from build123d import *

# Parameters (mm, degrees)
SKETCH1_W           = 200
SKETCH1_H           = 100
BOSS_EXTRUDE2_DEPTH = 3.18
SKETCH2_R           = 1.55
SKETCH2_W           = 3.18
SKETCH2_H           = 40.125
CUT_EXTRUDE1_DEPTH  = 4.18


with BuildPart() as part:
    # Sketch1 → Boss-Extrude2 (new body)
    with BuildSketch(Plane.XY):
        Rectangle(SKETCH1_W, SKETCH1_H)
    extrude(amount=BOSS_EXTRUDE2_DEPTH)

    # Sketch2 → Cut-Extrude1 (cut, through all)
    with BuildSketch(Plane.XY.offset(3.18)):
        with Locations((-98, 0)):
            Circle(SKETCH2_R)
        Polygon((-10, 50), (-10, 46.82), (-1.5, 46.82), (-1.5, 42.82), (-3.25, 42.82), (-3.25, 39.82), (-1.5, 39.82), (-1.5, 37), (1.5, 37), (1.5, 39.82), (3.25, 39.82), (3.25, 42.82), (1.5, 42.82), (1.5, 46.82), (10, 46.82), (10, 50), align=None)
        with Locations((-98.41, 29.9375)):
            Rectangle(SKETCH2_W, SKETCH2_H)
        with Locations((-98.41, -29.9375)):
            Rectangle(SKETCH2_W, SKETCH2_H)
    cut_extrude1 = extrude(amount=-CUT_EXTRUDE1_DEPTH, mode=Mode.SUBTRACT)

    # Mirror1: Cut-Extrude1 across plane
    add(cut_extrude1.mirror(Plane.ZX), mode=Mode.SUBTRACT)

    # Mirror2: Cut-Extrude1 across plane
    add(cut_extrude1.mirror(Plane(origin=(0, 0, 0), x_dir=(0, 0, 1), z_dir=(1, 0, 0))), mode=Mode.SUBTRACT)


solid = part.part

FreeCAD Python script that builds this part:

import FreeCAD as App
import Part
import Sketcher

doc = App.newDocument("Part")
body = doc.addObject("PartDesign::Body", "Body")

sketch1 = body.newObject("Sketcher::SketchObject", "Sketch")
sketch1.AttachmentSupport = (doc.getObject("XY_Plane"), [""])
sketch1.MapMode = "FlatFace"
sketch1.addGeometry([
    Part.LineSegment(App.Vector(-100, 50, 0), App.Vector(-100, -50, 0)),
    Part.LineSegment(App.Vector(-100, -50, 0), App.Vector(100, -50, 0)),
    Part.LineSegment(App.Vector(100, -50, 0), App.Vector(100, 50, 0)),
    Part.LineSegment(App.Vector(100, 50, 0), App.Vector(-100, 50, 0)),
], False)
sketch1.addConstraint([
    Sketcher.Constraint("Coincident", 0, 2, 1, 1),
    Sketcher.Constraint("Coincident", 1, 2, 2, 1),
    Sketcher.Constraint("Coincident", 2, 2, 3, 1),
    Sketcher.Constraint("Coincident", 3, 2, 0, 1),
    Sketcher.Constraint("Vertical", 0),
    Sketcher.Constraint("Horizontal", 1),
    Sketcher.Constraint("Vertical", 2),
    Sketcher.Constraint("Horizontal", 3),
    Sketcher.Constraint("Symmetric", 0, 2, 2, 2, -1, 1),
    Sketcher.Constraint("DistanceX", 1, 1, 1, 2, 200.0),
    Sketcher.Constraint("DistanceY", 0, 2, 0, 1, 100.0),
])
pad1 = body.newObject("PartDesign::Pad", "Pad")
pad1.Profile = sketch1
pad1.Length = 3.18

sketch2 = body.newObject("Sketcher::SketchObject", "Sketch001")
sketch2.AttachmentSupport = (doc.getObject("XY_Plane"), [""])
sketch2.MapMode = "FlatFace"
sketch2.AttachmentOffset = App.Placement(App.Vector(0, 0, 3.18), App.Rotation())
sketch2.addGeometry([
    Part.Circle(App.Vector(-98, 0, 0), App.Vector(0, 0, 1), 1.55),
    Part.LineSegment(App.Vector(-10, 50, 0), App.Vector(-10, 46.82, 0)),
    Part.LineSegment(App.Vector(-10, 46.82, 0), App.Vector(-1.5, 46.82, 0)),
    Part.LineSegment(App.Vector(-1.5, 46.82, 0), App.Vector(-1.5, 42.82, 0)),
    Part.LineSegment(App.Vector(-1.5, 42.82, 0), App.Vector(-3.25, 42.82, 0)),
    Part.LineSegment(App.Vector(-3.25, 42.82, 0), App.Vector(-3.25, 39.82, 0)),
    Part.LineSegment(App.Vector(-3.25, 39.82, 0), App.Vector(-1.5, 39.82, 0)),
    Part.LineSegment(App.Vector(-1.5, 39.82, 0), App.Vector(-1.5, 37, 0)),
    Part.LineSegment(App.Vector(-1.5, 37, 0), App.Vector(1.5, 37, 0)),
    Part.LineSegment(App.Vector(1.5, 37, 0), App.Vector(1.5, 39.82, 0)),
    Part.LineSegment(App.Vector(1.5, 39.82, 0), App.Vector(3.25, 39.82, 0)),
    Part.LineSegment(App.Vector(3.25, 39.82, 0), App.Vector(3.25, 42.82, 0)),
    Part.LineSegment(App.Vector(3.25, 42.82, 0), App.Vector(1.5, 42.82, 0)),
    Part.LineSegment(App.Vector(1.5, 42.82, 0), App.Vector(1.5, 46.82, 0)),
    Part.LineSegment(App.Vector(1.5, 46.82, 0), App.Vector(10, 46.82, 0)),
    Part.LineSegment(App.Vector(10, 46.82, 0), App.Vector(10, 50, 0)),
    Part.LineSegment(App.Vector(10, 50, 0), App.Vector(-10, 50, 0)),
    Part.LineSegment(App.Vector(-100, 50, 0), App.Vector(-100, 9.875, 0)),
    Part.LineSegment(App.Vector(-100, 9.875, 0), App.Vector(-96.82, 9.875, 0)),
    Part.LineSegment(App.Vector(-96.82, 9.875, 0), App.Vector(-96.82, 50, 0)),
    Part.LineSegment(App.Vector(-96.82, 50, 0), App.Vector(-100, 50, 0)),
    Part.LineSegment(App.Vector(-100, -9.875, 0), App.Vector(-100, -50, 0)),
    Part.LineSegment(App.Vector(-100, -50, 0), App.Vector(-96.82, -50, 0)),
    Part.LineSegment(App.Vector(-96.82, -50, 0), App.Vector(-96.82, -9.875, 0)),
    Part.LineSegment(App.Vector(-96.82, -9.875, 0), App.Vector(-100, -9.875, 0)),
], False)
sketch2.addConstraint([
    Sketcher.Constraint("Coincident", 1, 2, 2, 1),
    Sketcher.Constraint("Coincident", 2, 2, 3, 1),
    Sketcher.Constraint("Coincident", 3, 2, 4, 1),
    Sketcher.Constraint("Coincident", 4, 2, 5, 1),
    Sketcher.Constraint("Coincident", 5, 2, 6, 1),
    Sketcher.Constraint("Coincident", 6, 2, 7, 1),
    Sketcher.Constraint("Coincident", 7, 2, 8, 1),
    Sketcher.Constraint("Coincident", 8, 2, 9, 1),
    Sketcher.Constraint("Coincident", 9, 2, 10, 1),
    Sketcher.Constraint("Coincident", 10, 2, 11, 1),
    Sketcher.Constraint("Coincident", 11, 2, 12, 1),
    Sketcher.Constraint("Coincident", 12, 2, 13, 1),
    Sketcher.Constraint("Coincident", 13, 2, 14, 1),
    Sketcher.Constraint("Coincident", 14, 2, 15, 1),
    Sketcher.Constraint("Coincident", 15, 2, 16, 1),
    Sketcher.Constraint("Coincident", 16, 2, 1, 1),
    Sketcher.Constraint("Coincident", 17, 2, 18, 1),
    Sketcher.Constraint("Coincident", 18, 2, 19, 1),
    Sketcher.Constraint("Coincident", 19, 2, 20, 1),
    Sketcher.Constraint("Coincident", 20, 2, 17, 1),
    Sketcher.Constraint("Coincident", 21, 2, 22, 1),
    Sketcher.Constraint("Coincident", 22, 2, 23, 1),
    Sketcher.Constraint("Coincident", 23, 2, 24, 1),
    Sketcher.Constraint("Coincident", 24, 2, 21, 1),
    Sketcher.Constraint("Vertical", 1),
    Sketcher.Constraint("Horizontal", 2),
    Sketcher.Constraint("Vertical", 3),
    Sketcher.Constraint("Horizontal", 4),
    Sketcher.Constraint("Vertical", 5),
    Sketcher.Constraint("Horizontal", 6),
    Sketcher.Constraint("Vertical", 7),
    Sketcher.Constraint("Horizontal", 8),
    Sketcher.Constraint("Vertical", 9),
    Sketcher.Constraint("Horizontal", 10),
    Sketcher.Constraint("Vertical", 11),
    Sketcher.Constraint("Horizontal", 12),
    Sketcher.Constraint("Vertical", 13),
    Sketcher.Constraint("Horizontal", 14),
    Sketcher.Constraint("Vertical", 15),
    Sketcher.Constraint("Horizontal", 16),
    Sketcher.Constraint("Vertical", 17),
    Sketcher.Constraint("Horizontal", 18),
    Sketcher.Constraint("Vertical", 19),
    Sketcher.Constraint("Horizontal", 20),
    Sketcher.Constraint("Vertical", 21),
    Sketcher.Constraint("Horizontal", 22),
    Sketcher.Constraint("Vertical", 23),
    Sketcher.Constraint("Horizontal", 24),
    Sketcher.Constraint("Symmetric", 6, 2, 9, 2, -2),
    Sketcher.Constraint("Symmetric", 4, 2, 11, 2, -2),
    Sketcher.Constraint("Symmetric", 2, 2, 13, 2, -2),
    Sketcher.Constraint("Symmetric", 20, 2, 21, 2, -1),
    Sketcher.Constraint("Symmetric", 18, 2, 23, 2, -1),
    Sketcher.Constraint("PointOnObject", 0, 3, -1),
    Sketcher.Constraint("Horizontal", 16, 2, 19, 2),
    Sketcher.Constraint("Vertical", 3, 2, 6, 2),
    Sketcher.Constraint("Equal", 2, 14),
    Sketcher.Constraint("Equal", 24, 1),
    Sketcher.Constraint("Equal", 8, 5),
    Sketcher.Constraint("Diameter", 0, 3.1),
    Sketcher.Constraint("DistanceX", 8, 1, 8, 2, 3.0),
    Sketcher.Constraint("DistanceX", 16, 2, 16, 1, 20.0),
    Sketcher.Constraint("DistanceY", 3, 2, 3, 1, 4.0),
    Sketcher.Constraint("DistanceX", 0, 3, -1, 1, 98.0),
    Sketcher.Constraint("DistanceY", -1, 1, 7, 2, 37.0),
    Sketcher.Constraint("DistanceY", -1, 1, 15, 2, 50.0),
    Sketcher.Constraint("DistanceX", 17, 2, -1, 1, 100.0),
    Sketcher.Constraint("DistanceX", 4, 2, 4, 1, 1.75),
    Sketcher.Constraint("DistanceX", 18, 1, 18, 2, 3.18),
    Sketcher.Constraint("DistanceY", 17, 2, 17, 1, 40.125),
])
pocket1 = body.newObject("PartDesign::Pocket", "Pocket")
pocket1.Profile = sketch2
pocket1.Type = "ThroughAll"
doc.recompute()

mirrored = body.newObject("PartDesign::Mirrored", "Mirrored")
mirrored.Originals = [pocket1]
mirrored.MirrorPlane = (doc.getObject("XZ_Plane"), [""])
body.Tip = mirrored
doc.recompute()

mirrored2 = body.newObject("PartDesign::Mirrored", "Mirrored001")
mirrored2.Originals = [pocket1]
mirrored2.MirrorPlane = (doc.getObject("YZ_Plane"), [""])
body.Tip = mirrored2

doc.recompute()
